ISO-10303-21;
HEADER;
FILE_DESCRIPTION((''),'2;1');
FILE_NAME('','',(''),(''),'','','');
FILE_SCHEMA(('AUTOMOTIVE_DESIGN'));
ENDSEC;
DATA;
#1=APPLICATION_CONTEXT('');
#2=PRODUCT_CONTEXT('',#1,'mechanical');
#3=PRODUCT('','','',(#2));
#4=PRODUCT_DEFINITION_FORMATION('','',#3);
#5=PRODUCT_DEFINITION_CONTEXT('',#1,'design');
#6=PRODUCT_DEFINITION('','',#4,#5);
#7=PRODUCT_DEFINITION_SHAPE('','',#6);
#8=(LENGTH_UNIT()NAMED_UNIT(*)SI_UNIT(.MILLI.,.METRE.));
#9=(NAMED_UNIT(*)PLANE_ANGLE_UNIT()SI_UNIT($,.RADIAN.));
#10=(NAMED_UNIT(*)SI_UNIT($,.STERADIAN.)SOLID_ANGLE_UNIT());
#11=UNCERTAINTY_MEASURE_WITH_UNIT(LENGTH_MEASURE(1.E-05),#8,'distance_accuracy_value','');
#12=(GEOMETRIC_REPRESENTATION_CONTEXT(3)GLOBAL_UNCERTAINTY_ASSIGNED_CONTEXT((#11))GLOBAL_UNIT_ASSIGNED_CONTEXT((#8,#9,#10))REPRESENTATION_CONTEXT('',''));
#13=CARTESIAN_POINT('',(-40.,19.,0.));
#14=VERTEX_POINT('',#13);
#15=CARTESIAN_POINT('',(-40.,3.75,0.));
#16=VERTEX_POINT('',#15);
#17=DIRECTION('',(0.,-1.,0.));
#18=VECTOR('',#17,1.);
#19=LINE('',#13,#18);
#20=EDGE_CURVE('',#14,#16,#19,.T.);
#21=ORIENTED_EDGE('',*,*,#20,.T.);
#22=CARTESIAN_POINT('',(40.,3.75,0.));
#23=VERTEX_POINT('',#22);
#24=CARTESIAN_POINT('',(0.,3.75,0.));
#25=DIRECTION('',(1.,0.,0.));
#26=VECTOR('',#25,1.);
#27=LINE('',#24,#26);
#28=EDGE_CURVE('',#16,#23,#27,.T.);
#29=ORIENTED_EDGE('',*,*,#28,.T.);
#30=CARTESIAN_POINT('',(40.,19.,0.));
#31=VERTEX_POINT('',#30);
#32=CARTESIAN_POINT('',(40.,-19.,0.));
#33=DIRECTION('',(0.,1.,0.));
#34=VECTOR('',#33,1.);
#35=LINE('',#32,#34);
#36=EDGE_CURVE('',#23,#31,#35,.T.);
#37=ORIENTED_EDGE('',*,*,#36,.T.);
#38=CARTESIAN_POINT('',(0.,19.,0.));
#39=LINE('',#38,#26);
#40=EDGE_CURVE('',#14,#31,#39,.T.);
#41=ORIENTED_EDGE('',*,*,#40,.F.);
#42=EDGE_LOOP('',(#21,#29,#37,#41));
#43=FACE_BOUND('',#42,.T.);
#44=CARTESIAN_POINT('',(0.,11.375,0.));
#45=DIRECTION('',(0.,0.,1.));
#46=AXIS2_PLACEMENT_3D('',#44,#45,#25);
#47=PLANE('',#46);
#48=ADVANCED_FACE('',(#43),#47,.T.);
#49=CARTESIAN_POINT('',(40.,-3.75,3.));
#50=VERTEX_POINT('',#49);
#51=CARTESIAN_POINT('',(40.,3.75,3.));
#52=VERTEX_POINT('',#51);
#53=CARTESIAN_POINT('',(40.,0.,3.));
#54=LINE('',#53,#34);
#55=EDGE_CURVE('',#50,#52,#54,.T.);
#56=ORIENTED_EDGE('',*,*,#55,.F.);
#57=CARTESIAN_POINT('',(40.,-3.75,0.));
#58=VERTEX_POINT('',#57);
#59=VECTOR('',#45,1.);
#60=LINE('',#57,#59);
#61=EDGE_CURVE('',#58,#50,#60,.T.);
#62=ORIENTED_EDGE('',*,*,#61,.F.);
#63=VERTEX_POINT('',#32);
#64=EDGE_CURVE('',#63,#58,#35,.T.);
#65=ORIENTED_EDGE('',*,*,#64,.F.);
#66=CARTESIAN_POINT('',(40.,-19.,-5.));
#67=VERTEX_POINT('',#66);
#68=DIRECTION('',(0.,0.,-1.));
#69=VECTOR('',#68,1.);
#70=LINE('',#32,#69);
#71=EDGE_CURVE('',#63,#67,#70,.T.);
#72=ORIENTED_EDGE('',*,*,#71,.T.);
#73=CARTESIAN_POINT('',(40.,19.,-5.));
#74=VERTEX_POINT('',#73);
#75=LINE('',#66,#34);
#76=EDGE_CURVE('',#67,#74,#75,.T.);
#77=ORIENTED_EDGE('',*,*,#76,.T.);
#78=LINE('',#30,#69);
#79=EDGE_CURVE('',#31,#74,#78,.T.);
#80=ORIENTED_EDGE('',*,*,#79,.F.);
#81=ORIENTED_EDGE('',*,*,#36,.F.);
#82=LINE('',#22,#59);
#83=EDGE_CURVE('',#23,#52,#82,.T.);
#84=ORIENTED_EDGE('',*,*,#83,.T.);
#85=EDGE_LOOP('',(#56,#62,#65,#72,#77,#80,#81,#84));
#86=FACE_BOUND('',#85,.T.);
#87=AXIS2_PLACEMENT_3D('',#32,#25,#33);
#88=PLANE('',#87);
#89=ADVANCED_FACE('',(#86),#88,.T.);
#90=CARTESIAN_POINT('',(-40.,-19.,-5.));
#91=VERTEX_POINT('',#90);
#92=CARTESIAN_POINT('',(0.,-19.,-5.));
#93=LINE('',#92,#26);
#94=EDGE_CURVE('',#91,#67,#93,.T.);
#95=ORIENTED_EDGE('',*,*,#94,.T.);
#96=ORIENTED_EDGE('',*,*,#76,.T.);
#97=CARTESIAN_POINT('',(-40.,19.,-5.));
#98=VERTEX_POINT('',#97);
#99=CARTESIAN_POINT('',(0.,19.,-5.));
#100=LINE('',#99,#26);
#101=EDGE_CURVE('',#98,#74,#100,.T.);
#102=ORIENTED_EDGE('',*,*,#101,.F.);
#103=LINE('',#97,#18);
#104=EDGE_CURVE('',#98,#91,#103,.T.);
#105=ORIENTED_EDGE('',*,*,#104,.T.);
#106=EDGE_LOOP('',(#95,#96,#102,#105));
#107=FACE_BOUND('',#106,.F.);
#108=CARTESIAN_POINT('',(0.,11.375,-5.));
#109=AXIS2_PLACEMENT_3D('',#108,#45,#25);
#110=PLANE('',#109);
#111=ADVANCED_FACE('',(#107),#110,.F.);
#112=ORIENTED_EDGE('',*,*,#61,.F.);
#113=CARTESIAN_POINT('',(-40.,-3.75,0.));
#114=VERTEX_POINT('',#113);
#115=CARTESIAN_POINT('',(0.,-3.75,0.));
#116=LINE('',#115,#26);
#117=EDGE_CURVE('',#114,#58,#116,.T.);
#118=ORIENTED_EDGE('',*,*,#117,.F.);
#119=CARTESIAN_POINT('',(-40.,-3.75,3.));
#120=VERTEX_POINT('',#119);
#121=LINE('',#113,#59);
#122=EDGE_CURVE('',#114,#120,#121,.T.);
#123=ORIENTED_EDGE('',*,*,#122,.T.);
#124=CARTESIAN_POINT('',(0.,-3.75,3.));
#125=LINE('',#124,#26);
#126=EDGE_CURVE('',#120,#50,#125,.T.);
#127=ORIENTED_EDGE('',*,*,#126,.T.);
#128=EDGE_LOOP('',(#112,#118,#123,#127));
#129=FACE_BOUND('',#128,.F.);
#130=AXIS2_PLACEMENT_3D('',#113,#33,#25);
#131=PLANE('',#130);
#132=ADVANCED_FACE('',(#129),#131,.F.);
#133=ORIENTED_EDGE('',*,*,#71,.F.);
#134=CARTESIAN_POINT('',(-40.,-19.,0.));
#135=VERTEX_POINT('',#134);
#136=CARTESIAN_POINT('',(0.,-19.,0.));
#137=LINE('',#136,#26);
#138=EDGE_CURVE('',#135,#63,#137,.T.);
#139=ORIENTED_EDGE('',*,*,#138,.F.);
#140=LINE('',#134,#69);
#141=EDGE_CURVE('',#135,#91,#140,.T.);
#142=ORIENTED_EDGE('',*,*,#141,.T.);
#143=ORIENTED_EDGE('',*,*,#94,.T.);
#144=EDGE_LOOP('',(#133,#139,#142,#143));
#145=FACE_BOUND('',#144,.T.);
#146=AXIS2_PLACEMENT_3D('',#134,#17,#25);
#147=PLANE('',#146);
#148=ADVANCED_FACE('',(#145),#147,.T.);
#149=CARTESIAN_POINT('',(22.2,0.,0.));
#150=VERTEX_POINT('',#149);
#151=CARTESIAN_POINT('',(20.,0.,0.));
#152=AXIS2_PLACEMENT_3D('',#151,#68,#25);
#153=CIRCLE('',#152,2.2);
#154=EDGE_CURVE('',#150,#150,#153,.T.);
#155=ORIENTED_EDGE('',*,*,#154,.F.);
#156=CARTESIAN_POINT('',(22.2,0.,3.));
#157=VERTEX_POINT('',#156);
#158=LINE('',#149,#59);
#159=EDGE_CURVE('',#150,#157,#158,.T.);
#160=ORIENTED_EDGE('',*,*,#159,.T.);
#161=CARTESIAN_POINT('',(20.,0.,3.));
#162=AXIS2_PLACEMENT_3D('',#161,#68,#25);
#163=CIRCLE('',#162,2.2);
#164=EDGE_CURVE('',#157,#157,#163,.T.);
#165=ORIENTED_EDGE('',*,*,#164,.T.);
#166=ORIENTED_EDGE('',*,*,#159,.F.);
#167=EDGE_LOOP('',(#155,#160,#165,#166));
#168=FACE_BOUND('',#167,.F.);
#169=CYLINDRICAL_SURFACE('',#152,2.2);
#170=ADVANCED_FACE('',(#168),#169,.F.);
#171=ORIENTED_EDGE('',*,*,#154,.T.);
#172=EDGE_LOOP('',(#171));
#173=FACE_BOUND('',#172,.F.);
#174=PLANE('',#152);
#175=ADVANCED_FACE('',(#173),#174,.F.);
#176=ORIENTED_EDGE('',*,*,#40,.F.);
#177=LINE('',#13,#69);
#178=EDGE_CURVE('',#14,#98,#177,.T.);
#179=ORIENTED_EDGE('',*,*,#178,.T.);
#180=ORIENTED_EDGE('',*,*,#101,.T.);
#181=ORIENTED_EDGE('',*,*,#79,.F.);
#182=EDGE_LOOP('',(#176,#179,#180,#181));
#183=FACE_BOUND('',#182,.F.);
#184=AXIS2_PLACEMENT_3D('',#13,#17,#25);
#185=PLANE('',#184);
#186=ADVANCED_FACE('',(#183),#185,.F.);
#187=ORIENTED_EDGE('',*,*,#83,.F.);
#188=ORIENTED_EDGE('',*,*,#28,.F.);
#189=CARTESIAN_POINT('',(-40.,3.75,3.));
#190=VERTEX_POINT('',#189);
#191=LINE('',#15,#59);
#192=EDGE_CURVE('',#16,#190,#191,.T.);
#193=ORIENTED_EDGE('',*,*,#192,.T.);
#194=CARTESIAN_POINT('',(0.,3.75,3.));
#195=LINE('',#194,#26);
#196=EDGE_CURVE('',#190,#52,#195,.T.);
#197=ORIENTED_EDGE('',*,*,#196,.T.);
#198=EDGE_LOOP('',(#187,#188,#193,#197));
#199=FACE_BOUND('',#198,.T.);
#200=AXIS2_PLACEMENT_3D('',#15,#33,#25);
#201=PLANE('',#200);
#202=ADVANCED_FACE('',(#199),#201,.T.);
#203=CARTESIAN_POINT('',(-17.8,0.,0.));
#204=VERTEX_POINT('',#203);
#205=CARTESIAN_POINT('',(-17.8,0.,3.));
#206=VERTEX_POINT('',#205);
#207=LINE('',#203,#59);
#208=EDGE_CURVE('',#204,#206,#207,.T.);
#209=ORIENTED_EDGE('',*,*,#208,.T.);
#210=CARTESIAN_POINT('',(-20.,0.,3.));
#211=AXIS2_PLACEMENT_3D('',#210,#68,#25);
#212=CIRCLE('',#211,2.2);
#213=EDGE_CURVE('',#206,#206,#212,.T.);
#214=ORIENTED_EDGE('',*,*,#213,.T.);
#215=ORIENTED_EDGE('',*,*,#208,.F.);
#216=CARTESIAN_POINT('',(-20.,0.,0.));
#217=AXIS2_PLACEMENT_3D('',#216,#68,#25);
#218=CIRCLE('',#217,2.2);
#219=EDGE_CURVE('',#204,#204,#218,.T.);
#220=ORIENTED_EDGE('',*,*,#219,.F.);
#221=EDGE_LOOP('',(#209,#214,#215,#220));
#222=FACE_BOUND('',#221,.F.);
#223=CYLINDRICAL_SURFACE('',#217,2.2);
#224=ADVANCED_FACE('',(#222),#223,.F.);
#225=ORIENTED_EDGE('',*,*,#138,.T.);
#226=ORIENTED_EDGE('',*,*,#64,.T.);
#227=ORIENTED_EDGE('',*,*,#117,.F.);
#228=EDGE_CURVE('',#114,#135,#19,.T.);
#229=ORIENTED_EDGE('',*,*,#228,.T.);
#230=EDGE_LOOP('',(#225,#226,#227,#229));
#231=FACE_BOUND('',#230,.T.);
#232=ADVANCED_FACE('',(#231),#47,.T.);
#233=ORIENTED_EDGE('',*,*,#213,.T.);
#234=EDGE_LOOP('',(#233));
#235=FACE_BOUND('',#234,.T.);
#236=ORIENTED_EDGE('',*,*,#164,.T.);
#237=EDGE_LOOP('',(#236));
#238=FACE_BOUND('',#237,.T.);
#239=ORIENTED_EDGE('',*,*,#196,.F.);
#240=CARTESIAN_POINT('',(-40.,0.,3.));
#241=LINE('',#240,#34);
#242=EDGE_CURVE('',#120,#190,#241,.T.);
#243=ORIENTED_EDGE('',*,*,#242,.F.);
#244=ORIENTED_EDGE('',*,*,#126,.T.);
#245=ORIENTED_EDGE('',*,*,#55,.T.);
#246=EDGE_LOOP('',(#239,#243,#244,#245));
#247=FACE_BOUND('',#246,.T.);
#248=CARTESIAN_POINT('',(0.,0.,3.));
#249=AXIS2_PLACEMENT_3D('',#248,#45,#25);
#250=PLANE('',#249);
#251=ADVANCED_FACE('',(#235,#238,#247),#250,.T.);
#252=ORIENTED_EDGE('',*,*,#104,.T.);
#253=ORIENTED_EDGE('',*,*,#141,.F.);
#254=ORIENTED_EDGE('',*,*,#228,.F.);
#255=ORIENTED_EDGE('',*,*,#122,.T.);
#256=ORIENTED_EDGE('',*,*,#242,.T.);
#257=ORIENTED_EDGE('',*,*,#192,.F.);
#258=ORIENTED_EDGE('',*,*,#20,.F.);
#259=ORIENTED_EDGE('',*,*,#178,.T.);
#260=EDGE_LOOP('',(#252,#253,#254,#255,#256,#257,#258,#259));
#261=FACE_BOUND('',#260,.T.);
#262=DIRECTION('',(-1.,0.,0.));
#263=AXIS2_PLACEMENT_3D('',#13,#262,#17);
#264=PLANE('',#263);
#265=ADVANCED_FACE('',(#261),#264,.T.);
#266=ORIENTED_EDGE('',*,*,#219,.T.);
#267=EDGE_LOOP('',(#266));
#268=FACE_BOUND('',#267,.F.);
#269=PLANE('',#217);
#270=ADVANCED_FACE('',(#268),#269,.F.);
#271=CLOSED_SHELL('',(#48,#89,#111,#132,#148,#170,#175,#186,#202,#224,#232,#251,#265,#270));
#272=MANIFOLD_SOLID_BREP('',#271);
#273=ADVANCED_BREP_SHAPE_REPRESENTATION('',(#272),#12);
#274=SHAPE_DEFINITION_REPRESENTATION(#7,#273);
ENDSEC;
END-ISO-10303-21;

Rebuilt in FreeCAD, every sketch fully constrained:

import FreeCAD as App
import Part
import Sketcher


def add_polygon(sketch, points):
    """Adds a closed chain of lines whose ends are joined by coincident constraints."""
    first, n = sketch.GeometryCount, len(points)
    for a, b in zip(points, points[1:] + points[:1]):
        sketch.addGeometry(Part.LineSegment(App.Vector(*a, 0), App.Vector(*b, 0)), False)
    for i in range(n):
        sketch.addConstraint(Sketcher.Constraint("Coincident", first + i, 2, first + (i + 1) % n, 1))

doc = App.newDocument("Part")
params = doc.addObject("Spreadsheet::Sheet", "Params")
for row, (alias, value) in enumerate([
    ("sketch1_width", "80 mm"),
    ("sketch1_height", "38 mm"),
    ("pad1_length", "5 mm"),
    ("sketch2_width", "80 mm"),
    ("sketch2_height", "7.5 mm"),
    ("pad2_length", "3 mm"),
    ("sketch3_diameter", "4.4 mm"),
], start=1):
    params.set(f"A{row}", alias)
    params.set(f"B{row}", "=" + value)
    params.setAlias(f"B{row}", alias)

body = doc.addObject("PartDesign::Body", "Body")

sketch1 = body.newObject("Sketcher::SketchObject", "Sketch")
sketch1.AttachmentSupport = (doc.getObject("XY_Plane"), [""])
sketch1.MapMode = "FlatFace"
add_polygon(sketch1, [(-40, 19), (-40, -19), (40, -19), (40, 19)])
sketch1.addConstraint(Sketcher.Constraint("Vertical", 0))
sketch1.addConstraint(Sketcher.Constraint("Horizontal", 1))
sketch1.addConstraint(Sketcher.Constraint("Vertical", 2))
sketch1.addConstraint(Sketcher.Constraint("Horizontal", 3))
sketch1.addConstraint(Sketcher.Constraint("Symmetric", 0, 2, 2, 2, -1, 1))
sketch1.addConstraint(Sketcher.Constraint("DistanceX", 1, 1, 1, 2, 80.0))
sketch1.addConstraint(Sketcher.Constraint("DistanceY", 0, 2, 0, 1, 38.0))
sketch1.setExpression("Constraints[9]", "Params.sketch1_width")
sketch1.setExpression("Constraints[10]", "Params.sketch1_height")
pad1 = body.newObject("PartDesign::Pad", "Pad")
pad1.Profile = sketch1
pad1.setExpression("Length", "Params.pad1_length")
pad1.Reversed = True

sketch2 = body.newObject("Sketcher::SketchObject", "Sketch001")
sketch2.AttachmentSupport = (doc.getObject("XY_Plane"), [""])
sketch2.MapMode = "FlatFace"
add_polygon(sketch2, [(-40, 3.75), (-40, -3.75), (40, -3.75), (40, 3.75)])
sketch2.addConstraint(Sketcher.Constraint("Vertical", 0))
sketch2.addConstraint(Sketcher.Constraint("Horizontal", 1))
sketch2.addConstraint(Sketcher.Constraint("Vertical", 2))
sketch2.addConstraint(Sketcher.Constraint("Horizontal", 3))
sketch2.addConstraint(Sketcher.Constraint("Symmetric", 0, 2, 2, 2, -1, 1))
sketch2.addConstraint(Sketcher.Constraint("DistanceX", 1, 1, 1, 2, 80.0))
sketch2.addConstraint(Sketcher.Constraint("DistanceY", 0, 2, 0, 1, 7.5))
sketch2.setExpression("Constraints[9]", "Params.sketch2_width")
sketch2.setExpression("Constraints[10]", "Params.sketch2_height")
pad2 = body.newObject("PartDesign::Pad", "Pad001")
pad2.Profile = sketch2
pad2.setExpression("Length", "Params.pad2_length")

sketch3 = body.newObject("Sketcher::SketchObject", "Sketch002")
sketch3.AttachmentSupport = (doc.getObject("XY_Plane"), [""])
sketch3.MapMode = "FlatFace"
sketch3.addGeometry(Part.Circle(App.Vector(20, 0, 0), App.Vector(0, 0, 1), 2.2), False)
sketch3.addGeometry(Part.Circle(App.Vector(-20, 0, 0), App.Vector(0, 0, 1), 2.2), False)
sketch3.addConstraint(Sketcher.Constraint("Equal", 0, 1))
sketch3.addConstraint(Sketcher.Constraint("Symmetric", 0, 3, 1, 3, -1, 1))
sketch3.addConstraint(Sketcher.Constraint("PointOnObject", 0, 3, -1))
sketch3.addConstraint(Sketcher.Constraint("Diameter", 0, 4.4))
sketch3.addConstraint(Sketcher.Constraint("DistanceX", -1, 1, 0, 3, 20.0))
sketch3.setExpression("Constraints[3]", "Params.sketch3_diameter")
pocket1 = body.newObject("PartDesign::Pocket", "Pocket")
pocket1.Profile = sketch3
pocket1.Type = "ThroughAll"
pocket1.Reversed = True

doc.recompute()
